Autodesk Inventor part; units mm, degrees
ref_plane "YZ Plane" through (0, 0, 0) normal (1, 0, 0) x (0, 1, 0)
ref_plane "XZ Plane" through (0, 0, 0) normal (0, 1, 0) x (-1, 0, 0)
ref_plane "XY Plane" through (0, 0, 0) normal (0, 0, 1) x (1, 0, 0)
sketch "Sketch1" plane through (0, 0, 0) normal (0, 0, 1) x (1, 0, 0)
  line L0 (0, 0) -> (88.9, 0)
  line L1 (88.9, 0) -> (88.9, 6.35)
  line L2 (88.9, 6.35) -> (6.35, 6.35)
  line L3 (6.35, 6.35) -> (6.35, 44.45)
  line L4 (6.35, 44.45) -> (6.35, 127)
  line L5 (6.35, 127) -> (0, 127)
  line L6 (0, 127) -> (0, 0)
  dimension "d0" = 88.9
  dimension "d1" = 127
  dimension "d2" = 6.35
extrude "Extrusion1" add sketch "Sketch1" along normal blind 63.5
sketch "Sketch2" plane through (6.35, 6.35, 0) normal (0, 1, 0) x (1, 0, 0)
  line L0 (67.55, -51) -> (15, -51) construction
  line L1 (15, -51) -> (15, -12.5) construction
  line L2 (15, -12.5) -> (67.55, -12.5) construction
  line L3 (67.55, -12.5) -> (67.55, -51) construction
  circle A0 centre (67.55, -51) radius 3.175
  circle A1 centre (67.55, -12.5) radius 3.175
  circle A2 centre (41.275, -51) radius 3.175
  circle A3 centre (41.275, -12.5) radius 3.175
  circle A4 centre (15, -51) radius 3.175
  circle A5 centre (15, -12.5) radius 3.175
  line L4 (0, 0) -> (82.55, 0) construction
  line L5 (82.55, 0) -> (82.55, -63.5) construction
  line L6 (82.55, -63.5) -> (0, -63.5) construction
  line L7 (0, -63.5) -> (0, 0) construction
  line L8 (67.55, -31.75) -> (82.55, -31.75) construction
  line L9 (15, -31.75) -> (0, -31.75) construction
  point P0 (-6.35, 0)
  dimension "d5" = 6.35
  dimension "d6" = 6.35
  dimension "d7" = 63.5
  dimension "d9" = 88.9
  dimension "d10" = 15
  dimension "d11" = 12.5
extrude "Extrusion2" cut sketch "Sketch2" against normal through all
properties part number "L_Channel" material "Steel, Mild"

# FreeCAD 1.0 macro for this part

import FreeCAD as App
import Part
import Sketcher

V = App.Vector
Q = App.Units.Quantity


def add_polygon(sketch, points):
    """Adds a closed chain of lines whose ends are joined by coincident constraints."""
    first, n = sketch.GeometryCount, len(points)
    for a, b in zip(points, points[1:] + points[:1]):
        sketch.addGeometry(Part.LineSegment(App.Vector(*a, 0), App.Vector(*b, 0)), False)
    for i in range(n):
        sketch.addConstraint(Sketcher.Constraint("Coincident", first + i, 2, first + (i + 1) % n, 1))

doc = App.newDocument("Part")
body = doc.addObject("PartDesign::Body", "Body")

# Sketch on XY plane
sketch1 = doc.addObject("Sketcher::SketchObject", "Sketch")
body.addObject(sketch1)
sketch1.AttachmentSupport = (doc.XY_Plane, [""])
sketch1.MapMode = "FlatFace"
add_polygon(sketch1, [(0, 127), (0, 0), (88.9, 0), (88.9, 6.35), (6.35, 6.35), (6.35, 127)])  # lines 0-5
sketch1.addConstraint([
    Sketcher.Constraint("Vertical", 0),
    Sketcher.Constraint("Horizontal", 1),
    Sketcher.Constraint("Vertical", 2),
    Sketcher.Constraint("Horizontal", 3),
    Sketcher.Constraint("Vertical", 4),
    Sketcher.Constraint("Horizontal", 5),
    Sketcher.Constraint("Coincident", 0, 2, -1, 1),
    Sketcher.Constraint("Equal", 5, 2),
    Sketcher.Constraint("DistanceY", 0, 2, 0, 1, Q("5 in")),
    Sketcher.Constraint("DistanceX", 1, 1, 1, 2, Q("3.5 in")),
    Sketcher.Constraint("DistanceX", 5, 2, 5, 1, Q("0.25 in")),
])
pad1 = doc.addObject("PartDesign::Pad", "Pad")
body.addObject(pad1)
pad1.Profile = sketch1
pad1.Length = Q("2.5 in")

# Sketch on XZ plane
sketch2 = doc.addObject("Sketcher::SketchObject", "Sketch001")
body.addObject(sketch2)
sketch2.AttachmentSupport = (doc.XZ_Plane, [""])
sketch2.MapMode = "FlatFace"
sketch2.AttachmentOffset = App.Placement(V(0, 0, -0.25 * 25.4), App.Rotation())
sketch2.addGeometry([
    Part.Circle(V(73.9, 51, 0), V(0, 0, 1), 3.175),  # 0
    Part.Circle(V(73.9, 12.5, 0), V(0, 0, 1), 3.175),  # 1
    Part.Circle(V(47.625, 51, 0), V(0, 0, 1), 3.175),  # 2
    Part.Circle(V(47.625, 12.5, 0), V(0, 0, 1), 3.175),  # 3
    Part.Circle(V(21.35, 51, 0), V(0, 0, 1), 3.175),  # 4
    Part.Circle(V(21.35, 12.5, 0), V(0, 0, 1), 3.175),  # 5
], False)
sketch2.addConstraint([
    Sketcher.Constraint("Equal", 0, 1),
    Sketcher.Constraint("Equal", 1, 2),
    Sketcher.Constraint("Equal", 2, 3),
    Sketcher.Constraint("Equal", 3, 4),
    Sketcher.Constraint("Equal", 4, 5),
    Sketcher.Constraint("Horizontal", 0, 3, 2, 3),
    Sketcher.Constraint("Horizontal", 1, 3, 3, 3),
    Sketcher.Constraint("Horizontal", 2, 3, 4, 3),
    Sketcher.Constraint("Horizontal", 3, 3, 5, 3),
    Sketcher.Constraint("Vertical", 0, 3, 1, 3),
    Sketcher.Constraint("Vertical", 2, 3, 3, 3),
    Sketcher.Constraint("Vertical", 4, 3, 5, 3),
    Sketcher.Constraint("Diameter", 0, Q("0.25 in")),
    Sketcher.Constraint("DistanceY", -1, 1, 1, 3, Q("12.5 mm")),
    Sketcher.Constraint("DistanceX", -1, 1, 2, 3, Q("1.875 in")),
    Sketcher.Constraint("DistanceX", 4, 3, 0, 3, Q("2.0689 in")),
    Sketcher.Constraint("DistanceX", -1, 1, 0, 3, Q("73.9 mm")),
    Sketcher.Constraint("DistanceY", -1, 1, 0, 3, Q("51 mm")),
])
pocket1 = doc.addObject("PartDesign::Pocket", "Pocket")
body.addObject(pocket1)
pocket1.Profile = sketch2
pocket1.Type = "ThroughAll"
pocket1.Reversed = True

doc.recompute()
